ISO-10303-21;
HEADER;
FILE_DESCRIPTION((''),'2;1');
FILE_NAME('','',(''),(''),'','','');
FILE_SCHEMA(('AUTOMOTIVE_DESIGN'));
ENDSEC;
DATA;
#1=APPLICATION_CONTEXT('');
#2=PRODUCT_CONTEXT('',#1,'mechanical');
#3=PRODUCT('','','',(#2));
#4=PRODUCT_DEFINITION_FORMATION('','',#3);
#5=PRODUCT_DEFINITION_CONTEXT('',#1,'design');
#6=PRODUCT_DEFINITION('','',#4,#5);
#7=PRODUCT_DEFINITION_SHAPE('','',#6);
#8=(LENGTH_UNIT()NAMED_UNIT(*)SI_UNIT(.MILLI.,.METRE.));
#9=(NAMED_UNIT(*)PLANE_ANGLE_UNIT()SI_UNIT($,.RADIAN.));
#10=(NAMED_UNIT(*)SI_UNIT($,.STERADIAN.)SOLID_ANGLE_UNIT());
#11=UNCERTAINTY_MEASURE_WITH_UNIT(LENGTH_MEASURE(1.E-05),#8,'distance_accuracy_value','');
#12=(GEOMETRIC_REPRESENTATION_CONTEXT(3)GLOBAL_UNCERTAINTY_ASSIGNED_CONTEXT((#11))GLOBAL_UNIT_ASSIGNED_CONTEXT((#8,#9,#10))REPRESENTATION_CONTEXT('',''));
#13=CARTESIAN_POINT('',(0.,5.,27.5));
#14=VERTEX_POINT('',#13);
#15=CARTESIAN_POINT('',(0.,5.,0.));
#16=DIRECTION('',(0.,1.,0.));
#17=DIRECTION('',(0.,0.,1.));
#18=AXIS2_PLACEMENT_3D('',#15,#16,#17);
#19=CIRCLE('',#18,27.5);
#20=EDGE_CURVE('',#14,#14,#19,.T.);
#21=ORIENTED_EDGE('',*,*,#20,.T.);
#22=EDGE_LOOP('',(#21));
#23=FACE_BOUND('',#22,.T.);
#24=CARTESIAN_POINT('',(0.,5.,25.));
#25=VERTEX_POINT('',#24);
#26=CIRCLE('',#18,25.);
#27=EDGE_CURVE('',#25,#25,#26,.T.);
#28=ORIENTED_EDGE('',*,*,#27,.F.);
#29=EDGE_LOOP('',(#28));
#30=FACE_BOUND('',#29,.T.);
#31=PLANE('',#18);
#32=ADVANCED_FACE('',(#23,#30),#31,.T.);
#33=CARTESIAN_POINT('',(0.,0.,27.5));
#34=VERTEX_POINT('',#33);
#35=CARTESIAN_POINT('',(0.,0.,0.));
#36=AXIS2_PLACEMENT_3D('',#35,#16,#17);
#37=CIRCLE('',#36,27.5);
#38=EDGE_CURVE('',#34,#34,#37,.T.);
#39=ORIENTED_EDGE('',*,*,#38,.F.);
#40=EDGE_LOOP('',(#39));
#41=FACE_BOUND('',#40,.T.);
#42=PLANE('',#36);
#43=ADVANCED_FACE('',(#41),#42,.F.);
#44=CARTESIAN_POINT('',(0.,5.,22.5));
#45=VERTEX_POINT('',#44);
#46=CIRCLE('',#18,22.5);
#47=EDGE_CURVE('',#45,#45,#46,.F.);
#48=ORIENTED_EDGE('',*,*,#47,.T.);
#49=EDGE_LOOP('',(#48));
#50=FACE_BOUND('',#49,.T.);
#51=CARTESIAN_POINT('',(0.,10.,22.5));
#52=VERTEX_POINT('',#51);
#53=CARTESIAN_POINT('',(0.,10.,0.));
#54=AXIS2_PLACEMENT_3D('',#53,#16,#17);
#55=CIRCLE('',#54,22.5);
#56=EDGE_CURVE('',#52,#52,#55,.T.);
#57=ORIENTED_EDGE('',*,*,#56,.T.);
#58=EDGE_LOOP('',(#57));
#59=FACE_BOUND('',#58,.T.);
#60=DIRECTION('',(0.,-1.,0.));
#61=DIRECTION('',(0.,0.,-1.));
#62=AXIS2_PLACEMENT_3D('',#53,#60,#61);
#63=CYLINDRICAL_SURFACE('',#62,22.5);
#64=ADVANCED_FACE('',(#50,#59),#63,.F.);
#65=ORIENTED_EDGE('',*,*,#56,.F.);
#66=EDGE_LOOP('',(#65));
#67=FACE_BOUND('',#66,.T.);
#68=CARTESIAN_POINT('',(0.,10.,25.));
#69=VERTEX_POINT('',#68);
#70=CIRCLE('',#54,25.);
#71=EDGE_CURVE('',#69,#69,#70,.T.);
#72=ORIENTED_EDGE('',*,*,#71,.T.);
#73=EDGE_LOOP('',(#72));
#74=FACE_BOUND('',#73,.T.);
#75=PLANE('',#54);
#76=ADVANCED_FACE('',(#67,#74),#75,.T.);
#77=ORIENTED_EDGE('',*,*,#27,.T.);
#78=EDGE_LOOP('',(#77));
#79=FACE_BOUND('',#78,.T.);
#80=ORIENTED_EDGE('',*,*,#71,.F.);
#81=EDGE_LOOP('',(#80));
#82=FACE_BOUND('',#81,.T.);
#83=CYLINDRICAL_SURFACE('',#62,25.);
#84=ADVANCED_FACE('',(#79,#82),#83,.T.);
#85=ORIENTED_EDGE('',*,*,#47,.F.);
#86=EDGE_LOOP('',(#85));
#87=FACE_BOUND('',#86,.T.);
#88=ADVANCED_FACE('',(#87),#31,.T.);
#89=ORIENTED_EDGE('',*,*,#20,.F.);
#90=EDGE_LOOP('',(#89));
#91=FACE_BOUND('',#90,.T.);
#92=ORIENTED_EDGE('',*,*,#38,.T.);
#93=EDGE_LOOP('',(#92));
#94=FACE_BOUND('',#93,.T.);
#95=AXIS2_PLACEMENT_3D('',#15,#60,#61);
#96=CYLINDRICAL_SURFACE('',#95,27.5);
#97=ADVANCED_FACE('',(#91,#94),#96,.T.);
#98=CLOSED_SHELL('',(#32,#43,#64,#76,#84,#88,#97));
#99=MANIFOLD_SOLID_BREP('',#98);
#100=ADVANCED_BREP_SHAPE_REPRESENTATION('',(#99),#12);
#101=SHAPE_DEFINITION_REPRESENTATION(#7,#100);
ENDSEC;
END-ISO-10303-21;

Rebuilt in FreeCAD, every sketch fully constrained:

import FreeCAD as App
import Part
import Sketcher
from FreeCAD import Vector

doc = App.newDocument("Part")
body = doc.addObject("PartDesign::Body", "Body")

# Sketch on XZ plane
sketch1 = body.newObject("Sketcher::SketchObject", "Sketch")
sketch1.AttachmentSupport = (doc.getObject("XZ_Plane"), [""])
sketch1.MapMode = "FlatFace"
sketch1.addGeometry(Part.Circle(Vector(0, 0, 0), Vector(0, 0, 1), 28), False)
sketch1.addConstraint([
    Sketcher.Constraint("Coincident", 0, 3, -1, 1),
    Sketcher.Constraint("Diameter", 0, 55.0),
])
pad1 = body.newObject("PartDesign::Pad", "Pad")
pad1.Profile = sketch1
pad1.Length = 5
pad1.Reversed = True

# Sketch on XZ plane
sketch2 = body.newObject("Sketcher::SketchObject", "Sketch001")
sketch2.AttachmentSupport = (doc.getObject("XZ_Plane"), [""])
sketch2.MapMode = "FlatFace"
sketch2.AttachmentOffset = App.Placement(Vector(0, 0, -5), App.Rotation())
sketch2.addGeometry([
    Part.Circle(Vector(0, 0, 0), Vector(0, 0, 1), 25),
    Part.Circle(Vector(0, 0, 0), Vector(0, 0, 1), 22),
], False)
sketch2.addConstraint([
    Sketcher.Constraint("Coincident", 0, 3, -1, 1),
    Sketcher.Constraint("Coincident", 1, 3, -1, 1),
    Sketcher.Constraint("Diameter", 0, 50.0),
    Sketcher.Constraint("Diameter", 1, 45.0),
])
pad2 = body.newObject("PartDesign::Pad", "Pad001")
pad2.Profile = sketch2
pad2.Length = 5
pad2.Reversed = True

doc.recompute()
